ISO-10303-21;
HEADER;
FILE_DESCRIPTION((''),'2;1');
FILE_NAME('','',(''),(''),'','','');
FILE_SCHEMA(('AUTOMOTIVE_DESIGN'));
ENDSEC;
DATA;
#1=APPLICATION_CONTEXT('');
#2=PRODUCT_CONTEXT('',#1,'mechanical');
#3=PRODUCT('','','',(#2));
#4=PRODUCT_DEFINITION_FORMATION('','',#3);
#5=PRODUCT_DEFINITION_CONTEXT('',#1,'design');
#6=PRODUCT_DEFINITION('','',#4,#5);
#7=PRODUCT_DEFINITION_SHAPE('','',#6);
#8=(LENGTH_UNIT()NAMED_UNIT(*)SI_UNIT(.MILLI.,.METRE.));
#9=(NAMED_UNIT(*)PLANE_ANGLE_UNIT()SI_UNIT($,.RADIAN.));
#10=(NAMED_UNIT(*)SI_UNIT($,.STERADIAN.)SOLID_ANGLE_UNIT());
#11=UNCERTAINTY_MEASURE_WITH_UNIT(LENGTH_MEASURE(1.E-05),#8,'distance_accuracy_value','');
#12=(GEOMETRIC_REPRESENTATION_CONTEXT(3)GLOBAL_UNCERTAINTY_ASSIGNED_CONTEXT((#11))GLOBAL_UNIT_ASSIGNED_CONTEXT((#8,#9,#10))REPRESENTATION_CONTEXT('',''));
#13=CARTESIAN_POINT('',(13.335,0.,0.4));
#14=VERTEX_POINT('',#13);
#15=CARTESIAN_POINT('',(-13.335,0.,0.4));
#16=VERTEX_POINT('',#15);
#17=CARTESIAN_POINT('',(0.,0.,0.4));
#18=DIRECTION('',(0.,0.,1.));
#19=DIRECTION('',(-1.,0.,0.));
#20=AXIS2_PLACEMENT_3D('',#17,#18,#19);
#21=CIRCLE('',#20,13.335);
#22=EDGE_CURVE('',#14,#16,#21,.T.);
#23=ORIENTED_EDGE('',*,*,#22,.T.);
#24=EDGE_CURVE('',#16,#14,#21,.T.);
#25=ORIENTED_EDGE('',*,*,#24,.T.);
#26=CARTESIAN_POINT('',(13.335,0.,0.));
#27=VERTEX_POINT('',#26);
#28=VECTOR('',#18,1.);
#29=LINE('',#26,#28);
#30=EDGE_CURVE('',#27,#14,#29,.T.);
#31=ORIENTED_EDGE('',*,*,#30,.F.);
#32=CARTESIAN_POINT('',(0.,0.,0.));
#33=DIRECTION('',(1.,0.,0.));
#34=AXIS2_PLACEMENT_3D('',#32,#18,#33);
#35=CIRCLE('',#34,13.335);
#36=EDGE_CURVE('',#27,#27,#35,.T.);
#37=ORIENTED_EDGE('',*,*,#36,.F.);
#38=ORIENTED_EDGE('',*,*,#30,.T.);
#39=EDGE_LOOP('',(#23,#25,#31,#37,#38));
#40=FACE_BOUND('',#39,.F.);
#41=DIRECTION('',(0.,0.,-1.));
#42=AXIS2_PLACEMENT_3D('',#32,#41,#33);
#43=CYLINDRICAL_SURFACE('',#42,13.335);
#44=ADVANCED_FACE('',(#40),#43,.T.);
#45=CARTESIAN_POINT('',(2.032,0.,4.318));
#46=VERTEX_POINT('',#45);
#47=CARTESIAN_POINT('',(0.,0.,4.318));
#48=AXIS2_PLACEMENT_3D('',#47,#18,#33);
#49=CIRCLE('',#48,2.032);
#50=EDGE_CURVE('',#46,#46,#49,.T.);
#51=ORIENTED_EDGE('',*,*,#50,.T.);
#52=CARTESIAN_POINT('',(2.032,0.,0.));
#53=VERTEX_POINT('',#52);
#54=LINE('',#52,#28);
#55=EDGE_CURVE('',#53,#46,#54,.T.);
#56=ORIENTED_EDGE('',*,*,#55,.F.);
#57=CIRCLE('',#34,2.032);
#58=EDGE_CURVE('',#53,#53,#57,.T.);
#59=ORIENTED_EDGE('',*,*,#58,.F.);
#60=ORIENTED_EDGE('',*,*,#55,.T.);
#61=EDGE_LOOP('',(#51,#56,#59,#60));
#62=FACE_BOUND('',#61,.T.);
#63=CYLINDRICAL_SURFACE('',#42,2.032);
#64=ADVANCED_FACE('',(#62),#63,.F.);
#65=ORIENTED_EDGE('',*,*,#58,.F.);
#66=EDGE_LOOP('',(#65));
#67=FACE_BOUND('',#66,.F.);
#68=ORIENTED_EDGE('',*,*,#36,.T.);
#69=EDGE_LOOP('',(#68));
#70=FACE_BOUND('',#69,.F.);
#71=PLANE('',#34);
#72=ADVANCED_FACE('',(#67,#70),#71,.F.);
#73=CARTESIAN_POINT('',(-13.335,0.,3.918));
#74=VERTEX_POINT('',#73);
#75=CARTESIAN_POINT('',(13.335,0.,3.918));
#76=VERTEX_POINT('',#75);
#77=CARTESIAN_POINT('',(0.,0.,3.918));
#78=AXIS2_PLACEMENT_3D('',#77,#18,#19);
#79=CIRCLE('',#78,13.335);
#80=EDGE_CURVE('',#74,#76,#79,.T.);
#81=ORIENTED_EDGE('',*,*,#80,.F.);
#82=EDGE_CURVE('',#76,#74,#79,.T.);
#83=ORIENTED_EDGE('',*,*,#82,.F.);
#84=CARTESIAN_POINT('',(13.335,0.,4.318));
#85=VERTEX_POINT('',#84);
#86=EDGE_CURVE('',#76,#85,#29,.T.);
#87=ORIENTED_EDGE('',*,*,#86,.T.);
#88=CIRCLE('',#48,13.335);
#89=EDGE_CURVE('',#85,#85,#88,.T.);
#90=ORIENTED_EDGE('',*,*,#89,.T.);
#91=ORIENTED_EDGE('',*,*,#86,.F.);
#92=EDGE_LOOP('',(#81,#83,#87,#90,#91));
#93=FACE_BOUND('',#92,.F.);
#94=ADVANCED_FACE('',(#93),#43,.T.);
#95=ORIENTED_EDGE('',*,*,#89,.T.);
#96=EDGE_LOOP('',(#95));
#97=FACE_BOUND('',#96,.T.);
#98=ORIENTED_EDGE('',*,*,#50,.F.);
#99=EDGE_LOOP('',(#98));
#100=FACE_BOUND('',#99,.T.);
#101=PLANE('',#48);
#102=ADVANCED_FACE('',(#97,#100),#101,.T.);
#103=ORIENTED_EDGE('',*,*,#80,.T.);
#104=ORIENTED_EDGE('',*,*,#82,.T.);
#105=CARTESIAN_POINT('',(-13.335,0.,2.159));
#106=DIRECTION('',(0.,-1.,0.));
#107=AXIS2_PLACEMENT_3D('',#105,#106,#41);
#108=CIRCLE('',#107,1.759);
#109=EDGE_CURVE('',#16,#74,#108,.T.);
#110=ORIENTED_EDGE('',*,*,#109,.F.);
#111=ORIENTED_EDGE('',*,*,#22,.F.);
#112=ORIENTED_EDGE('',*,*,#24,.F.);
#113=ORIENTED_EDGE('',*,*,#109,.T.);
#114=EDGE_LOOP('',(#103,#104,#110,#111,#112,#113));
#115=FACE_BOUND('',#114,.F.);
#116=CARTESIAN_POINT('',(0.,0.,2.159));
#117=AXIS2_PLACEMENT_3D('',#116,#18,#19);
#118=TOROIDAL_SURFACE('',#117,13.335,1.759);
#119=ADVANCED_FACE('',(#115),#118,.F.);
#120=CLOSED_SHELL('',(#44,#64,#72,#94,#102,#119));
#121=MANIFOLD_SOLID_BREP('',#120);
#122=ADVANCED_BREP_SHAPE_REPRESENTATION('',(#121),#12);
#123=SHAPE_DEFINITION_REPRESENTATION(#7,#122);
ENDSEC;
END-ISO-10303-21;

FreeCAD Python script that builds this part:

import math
import FreeCAD as App
import Part
import Sketcher
Q = App.Units.Quantity

doc = App.newDocument("Part")
body = doc.addObject("PartDesign::Body", "Body")

# Sketch on XY plane
sketch1 = doc.addObject("Sketcher::SketchObject", "Sketch")
body.addObject(sketch1)
sketch1.AttachmentSupport = (doc.XY_Plane, [""])
sketch1.MapMode = "FlatFace"
sketch1.addGeometry(Part.Circle(App.Vector(0, 0, 0), App.Vector(0, 0, 1), 13.3), False)
sketch1.addGeometry(Part.Circle(App.Vector(0, 0, 0), App.Vector(0, 0, 1), 2), False)
sketch1.addConstraint(Sketcher.Constraint("Coincident", 0, 3, -1, 1))
sketch1.addConstraint(Sketcher.Constraint("Coincident", 1, 3, -1, 1))
sketch1.addConstraint(Sketcher.Constraint("Diameter", 0, Q("1.05 in")))
sketch1.addConstraint(Sketcher.Constraint("Diameter", 1, Q("0.16 in")))
pad1 = doc.addObject("PartDesign::Pad", "Pad")
body.addObject(pad1)
pad1.Profile = sketch1
pad1.Length = Q("0.17 in")

# Sketch on XZ plane
sketch2 = doc.addObject("Sketcher::SketchObject", "Sketch001")
body.addObject(sketch2)
sketch2.AttachmentSupport = (doc.XZ_Plane, [""])
sketch2.MapMode = "FlatFace"
sketch2.addGeometry(Part.LineSegment(App.Vector(-13.3, 0.4, 0), App.Vector(-13.3, 3.9, 0)), False)
sketch2.addGeometry(Part.ArcOfCircle(Part.Circle(App.Vector(-13.3, 2.2, 0), App.Vector(0, 0, 1), 1.8), math.radians(-90), math.radians(90)), False)
sketch2.addConstraint(Sketcher.Constraint("Coincident", 0, 1, 1, 1))
sketch2.addConstraint(Sketcher.Constraint("Coincident", 1, 2, 0, 2))
sketch2.addConstraint(Sketcher.Constraint("Vertical", 0))
sketch2.addConstraint(Sketcher.Constraint("Vertical", 1, 3, 0, 1))
sketch2.addConstraint(Sketcher.Constraint("DistanceY", -1, 1, 0, 1, 0.4))
sketch2.addConstraint(Sketcher.Constraint("Radius", 1, 1.759))
sketch2.addConstraint(Sketcher.Constraint("DistanceX", 1, 3, -1, 1, Q("0.525 in")))
groove = doc.addObject("PartDesign::Groove", "Groove")
body.addObject(groove)
groove.Profile = sketch2
groove.ReferenceAxis = (sketch2, ["V_Axis"])
groove.Angle = 360

doc.recompute()
